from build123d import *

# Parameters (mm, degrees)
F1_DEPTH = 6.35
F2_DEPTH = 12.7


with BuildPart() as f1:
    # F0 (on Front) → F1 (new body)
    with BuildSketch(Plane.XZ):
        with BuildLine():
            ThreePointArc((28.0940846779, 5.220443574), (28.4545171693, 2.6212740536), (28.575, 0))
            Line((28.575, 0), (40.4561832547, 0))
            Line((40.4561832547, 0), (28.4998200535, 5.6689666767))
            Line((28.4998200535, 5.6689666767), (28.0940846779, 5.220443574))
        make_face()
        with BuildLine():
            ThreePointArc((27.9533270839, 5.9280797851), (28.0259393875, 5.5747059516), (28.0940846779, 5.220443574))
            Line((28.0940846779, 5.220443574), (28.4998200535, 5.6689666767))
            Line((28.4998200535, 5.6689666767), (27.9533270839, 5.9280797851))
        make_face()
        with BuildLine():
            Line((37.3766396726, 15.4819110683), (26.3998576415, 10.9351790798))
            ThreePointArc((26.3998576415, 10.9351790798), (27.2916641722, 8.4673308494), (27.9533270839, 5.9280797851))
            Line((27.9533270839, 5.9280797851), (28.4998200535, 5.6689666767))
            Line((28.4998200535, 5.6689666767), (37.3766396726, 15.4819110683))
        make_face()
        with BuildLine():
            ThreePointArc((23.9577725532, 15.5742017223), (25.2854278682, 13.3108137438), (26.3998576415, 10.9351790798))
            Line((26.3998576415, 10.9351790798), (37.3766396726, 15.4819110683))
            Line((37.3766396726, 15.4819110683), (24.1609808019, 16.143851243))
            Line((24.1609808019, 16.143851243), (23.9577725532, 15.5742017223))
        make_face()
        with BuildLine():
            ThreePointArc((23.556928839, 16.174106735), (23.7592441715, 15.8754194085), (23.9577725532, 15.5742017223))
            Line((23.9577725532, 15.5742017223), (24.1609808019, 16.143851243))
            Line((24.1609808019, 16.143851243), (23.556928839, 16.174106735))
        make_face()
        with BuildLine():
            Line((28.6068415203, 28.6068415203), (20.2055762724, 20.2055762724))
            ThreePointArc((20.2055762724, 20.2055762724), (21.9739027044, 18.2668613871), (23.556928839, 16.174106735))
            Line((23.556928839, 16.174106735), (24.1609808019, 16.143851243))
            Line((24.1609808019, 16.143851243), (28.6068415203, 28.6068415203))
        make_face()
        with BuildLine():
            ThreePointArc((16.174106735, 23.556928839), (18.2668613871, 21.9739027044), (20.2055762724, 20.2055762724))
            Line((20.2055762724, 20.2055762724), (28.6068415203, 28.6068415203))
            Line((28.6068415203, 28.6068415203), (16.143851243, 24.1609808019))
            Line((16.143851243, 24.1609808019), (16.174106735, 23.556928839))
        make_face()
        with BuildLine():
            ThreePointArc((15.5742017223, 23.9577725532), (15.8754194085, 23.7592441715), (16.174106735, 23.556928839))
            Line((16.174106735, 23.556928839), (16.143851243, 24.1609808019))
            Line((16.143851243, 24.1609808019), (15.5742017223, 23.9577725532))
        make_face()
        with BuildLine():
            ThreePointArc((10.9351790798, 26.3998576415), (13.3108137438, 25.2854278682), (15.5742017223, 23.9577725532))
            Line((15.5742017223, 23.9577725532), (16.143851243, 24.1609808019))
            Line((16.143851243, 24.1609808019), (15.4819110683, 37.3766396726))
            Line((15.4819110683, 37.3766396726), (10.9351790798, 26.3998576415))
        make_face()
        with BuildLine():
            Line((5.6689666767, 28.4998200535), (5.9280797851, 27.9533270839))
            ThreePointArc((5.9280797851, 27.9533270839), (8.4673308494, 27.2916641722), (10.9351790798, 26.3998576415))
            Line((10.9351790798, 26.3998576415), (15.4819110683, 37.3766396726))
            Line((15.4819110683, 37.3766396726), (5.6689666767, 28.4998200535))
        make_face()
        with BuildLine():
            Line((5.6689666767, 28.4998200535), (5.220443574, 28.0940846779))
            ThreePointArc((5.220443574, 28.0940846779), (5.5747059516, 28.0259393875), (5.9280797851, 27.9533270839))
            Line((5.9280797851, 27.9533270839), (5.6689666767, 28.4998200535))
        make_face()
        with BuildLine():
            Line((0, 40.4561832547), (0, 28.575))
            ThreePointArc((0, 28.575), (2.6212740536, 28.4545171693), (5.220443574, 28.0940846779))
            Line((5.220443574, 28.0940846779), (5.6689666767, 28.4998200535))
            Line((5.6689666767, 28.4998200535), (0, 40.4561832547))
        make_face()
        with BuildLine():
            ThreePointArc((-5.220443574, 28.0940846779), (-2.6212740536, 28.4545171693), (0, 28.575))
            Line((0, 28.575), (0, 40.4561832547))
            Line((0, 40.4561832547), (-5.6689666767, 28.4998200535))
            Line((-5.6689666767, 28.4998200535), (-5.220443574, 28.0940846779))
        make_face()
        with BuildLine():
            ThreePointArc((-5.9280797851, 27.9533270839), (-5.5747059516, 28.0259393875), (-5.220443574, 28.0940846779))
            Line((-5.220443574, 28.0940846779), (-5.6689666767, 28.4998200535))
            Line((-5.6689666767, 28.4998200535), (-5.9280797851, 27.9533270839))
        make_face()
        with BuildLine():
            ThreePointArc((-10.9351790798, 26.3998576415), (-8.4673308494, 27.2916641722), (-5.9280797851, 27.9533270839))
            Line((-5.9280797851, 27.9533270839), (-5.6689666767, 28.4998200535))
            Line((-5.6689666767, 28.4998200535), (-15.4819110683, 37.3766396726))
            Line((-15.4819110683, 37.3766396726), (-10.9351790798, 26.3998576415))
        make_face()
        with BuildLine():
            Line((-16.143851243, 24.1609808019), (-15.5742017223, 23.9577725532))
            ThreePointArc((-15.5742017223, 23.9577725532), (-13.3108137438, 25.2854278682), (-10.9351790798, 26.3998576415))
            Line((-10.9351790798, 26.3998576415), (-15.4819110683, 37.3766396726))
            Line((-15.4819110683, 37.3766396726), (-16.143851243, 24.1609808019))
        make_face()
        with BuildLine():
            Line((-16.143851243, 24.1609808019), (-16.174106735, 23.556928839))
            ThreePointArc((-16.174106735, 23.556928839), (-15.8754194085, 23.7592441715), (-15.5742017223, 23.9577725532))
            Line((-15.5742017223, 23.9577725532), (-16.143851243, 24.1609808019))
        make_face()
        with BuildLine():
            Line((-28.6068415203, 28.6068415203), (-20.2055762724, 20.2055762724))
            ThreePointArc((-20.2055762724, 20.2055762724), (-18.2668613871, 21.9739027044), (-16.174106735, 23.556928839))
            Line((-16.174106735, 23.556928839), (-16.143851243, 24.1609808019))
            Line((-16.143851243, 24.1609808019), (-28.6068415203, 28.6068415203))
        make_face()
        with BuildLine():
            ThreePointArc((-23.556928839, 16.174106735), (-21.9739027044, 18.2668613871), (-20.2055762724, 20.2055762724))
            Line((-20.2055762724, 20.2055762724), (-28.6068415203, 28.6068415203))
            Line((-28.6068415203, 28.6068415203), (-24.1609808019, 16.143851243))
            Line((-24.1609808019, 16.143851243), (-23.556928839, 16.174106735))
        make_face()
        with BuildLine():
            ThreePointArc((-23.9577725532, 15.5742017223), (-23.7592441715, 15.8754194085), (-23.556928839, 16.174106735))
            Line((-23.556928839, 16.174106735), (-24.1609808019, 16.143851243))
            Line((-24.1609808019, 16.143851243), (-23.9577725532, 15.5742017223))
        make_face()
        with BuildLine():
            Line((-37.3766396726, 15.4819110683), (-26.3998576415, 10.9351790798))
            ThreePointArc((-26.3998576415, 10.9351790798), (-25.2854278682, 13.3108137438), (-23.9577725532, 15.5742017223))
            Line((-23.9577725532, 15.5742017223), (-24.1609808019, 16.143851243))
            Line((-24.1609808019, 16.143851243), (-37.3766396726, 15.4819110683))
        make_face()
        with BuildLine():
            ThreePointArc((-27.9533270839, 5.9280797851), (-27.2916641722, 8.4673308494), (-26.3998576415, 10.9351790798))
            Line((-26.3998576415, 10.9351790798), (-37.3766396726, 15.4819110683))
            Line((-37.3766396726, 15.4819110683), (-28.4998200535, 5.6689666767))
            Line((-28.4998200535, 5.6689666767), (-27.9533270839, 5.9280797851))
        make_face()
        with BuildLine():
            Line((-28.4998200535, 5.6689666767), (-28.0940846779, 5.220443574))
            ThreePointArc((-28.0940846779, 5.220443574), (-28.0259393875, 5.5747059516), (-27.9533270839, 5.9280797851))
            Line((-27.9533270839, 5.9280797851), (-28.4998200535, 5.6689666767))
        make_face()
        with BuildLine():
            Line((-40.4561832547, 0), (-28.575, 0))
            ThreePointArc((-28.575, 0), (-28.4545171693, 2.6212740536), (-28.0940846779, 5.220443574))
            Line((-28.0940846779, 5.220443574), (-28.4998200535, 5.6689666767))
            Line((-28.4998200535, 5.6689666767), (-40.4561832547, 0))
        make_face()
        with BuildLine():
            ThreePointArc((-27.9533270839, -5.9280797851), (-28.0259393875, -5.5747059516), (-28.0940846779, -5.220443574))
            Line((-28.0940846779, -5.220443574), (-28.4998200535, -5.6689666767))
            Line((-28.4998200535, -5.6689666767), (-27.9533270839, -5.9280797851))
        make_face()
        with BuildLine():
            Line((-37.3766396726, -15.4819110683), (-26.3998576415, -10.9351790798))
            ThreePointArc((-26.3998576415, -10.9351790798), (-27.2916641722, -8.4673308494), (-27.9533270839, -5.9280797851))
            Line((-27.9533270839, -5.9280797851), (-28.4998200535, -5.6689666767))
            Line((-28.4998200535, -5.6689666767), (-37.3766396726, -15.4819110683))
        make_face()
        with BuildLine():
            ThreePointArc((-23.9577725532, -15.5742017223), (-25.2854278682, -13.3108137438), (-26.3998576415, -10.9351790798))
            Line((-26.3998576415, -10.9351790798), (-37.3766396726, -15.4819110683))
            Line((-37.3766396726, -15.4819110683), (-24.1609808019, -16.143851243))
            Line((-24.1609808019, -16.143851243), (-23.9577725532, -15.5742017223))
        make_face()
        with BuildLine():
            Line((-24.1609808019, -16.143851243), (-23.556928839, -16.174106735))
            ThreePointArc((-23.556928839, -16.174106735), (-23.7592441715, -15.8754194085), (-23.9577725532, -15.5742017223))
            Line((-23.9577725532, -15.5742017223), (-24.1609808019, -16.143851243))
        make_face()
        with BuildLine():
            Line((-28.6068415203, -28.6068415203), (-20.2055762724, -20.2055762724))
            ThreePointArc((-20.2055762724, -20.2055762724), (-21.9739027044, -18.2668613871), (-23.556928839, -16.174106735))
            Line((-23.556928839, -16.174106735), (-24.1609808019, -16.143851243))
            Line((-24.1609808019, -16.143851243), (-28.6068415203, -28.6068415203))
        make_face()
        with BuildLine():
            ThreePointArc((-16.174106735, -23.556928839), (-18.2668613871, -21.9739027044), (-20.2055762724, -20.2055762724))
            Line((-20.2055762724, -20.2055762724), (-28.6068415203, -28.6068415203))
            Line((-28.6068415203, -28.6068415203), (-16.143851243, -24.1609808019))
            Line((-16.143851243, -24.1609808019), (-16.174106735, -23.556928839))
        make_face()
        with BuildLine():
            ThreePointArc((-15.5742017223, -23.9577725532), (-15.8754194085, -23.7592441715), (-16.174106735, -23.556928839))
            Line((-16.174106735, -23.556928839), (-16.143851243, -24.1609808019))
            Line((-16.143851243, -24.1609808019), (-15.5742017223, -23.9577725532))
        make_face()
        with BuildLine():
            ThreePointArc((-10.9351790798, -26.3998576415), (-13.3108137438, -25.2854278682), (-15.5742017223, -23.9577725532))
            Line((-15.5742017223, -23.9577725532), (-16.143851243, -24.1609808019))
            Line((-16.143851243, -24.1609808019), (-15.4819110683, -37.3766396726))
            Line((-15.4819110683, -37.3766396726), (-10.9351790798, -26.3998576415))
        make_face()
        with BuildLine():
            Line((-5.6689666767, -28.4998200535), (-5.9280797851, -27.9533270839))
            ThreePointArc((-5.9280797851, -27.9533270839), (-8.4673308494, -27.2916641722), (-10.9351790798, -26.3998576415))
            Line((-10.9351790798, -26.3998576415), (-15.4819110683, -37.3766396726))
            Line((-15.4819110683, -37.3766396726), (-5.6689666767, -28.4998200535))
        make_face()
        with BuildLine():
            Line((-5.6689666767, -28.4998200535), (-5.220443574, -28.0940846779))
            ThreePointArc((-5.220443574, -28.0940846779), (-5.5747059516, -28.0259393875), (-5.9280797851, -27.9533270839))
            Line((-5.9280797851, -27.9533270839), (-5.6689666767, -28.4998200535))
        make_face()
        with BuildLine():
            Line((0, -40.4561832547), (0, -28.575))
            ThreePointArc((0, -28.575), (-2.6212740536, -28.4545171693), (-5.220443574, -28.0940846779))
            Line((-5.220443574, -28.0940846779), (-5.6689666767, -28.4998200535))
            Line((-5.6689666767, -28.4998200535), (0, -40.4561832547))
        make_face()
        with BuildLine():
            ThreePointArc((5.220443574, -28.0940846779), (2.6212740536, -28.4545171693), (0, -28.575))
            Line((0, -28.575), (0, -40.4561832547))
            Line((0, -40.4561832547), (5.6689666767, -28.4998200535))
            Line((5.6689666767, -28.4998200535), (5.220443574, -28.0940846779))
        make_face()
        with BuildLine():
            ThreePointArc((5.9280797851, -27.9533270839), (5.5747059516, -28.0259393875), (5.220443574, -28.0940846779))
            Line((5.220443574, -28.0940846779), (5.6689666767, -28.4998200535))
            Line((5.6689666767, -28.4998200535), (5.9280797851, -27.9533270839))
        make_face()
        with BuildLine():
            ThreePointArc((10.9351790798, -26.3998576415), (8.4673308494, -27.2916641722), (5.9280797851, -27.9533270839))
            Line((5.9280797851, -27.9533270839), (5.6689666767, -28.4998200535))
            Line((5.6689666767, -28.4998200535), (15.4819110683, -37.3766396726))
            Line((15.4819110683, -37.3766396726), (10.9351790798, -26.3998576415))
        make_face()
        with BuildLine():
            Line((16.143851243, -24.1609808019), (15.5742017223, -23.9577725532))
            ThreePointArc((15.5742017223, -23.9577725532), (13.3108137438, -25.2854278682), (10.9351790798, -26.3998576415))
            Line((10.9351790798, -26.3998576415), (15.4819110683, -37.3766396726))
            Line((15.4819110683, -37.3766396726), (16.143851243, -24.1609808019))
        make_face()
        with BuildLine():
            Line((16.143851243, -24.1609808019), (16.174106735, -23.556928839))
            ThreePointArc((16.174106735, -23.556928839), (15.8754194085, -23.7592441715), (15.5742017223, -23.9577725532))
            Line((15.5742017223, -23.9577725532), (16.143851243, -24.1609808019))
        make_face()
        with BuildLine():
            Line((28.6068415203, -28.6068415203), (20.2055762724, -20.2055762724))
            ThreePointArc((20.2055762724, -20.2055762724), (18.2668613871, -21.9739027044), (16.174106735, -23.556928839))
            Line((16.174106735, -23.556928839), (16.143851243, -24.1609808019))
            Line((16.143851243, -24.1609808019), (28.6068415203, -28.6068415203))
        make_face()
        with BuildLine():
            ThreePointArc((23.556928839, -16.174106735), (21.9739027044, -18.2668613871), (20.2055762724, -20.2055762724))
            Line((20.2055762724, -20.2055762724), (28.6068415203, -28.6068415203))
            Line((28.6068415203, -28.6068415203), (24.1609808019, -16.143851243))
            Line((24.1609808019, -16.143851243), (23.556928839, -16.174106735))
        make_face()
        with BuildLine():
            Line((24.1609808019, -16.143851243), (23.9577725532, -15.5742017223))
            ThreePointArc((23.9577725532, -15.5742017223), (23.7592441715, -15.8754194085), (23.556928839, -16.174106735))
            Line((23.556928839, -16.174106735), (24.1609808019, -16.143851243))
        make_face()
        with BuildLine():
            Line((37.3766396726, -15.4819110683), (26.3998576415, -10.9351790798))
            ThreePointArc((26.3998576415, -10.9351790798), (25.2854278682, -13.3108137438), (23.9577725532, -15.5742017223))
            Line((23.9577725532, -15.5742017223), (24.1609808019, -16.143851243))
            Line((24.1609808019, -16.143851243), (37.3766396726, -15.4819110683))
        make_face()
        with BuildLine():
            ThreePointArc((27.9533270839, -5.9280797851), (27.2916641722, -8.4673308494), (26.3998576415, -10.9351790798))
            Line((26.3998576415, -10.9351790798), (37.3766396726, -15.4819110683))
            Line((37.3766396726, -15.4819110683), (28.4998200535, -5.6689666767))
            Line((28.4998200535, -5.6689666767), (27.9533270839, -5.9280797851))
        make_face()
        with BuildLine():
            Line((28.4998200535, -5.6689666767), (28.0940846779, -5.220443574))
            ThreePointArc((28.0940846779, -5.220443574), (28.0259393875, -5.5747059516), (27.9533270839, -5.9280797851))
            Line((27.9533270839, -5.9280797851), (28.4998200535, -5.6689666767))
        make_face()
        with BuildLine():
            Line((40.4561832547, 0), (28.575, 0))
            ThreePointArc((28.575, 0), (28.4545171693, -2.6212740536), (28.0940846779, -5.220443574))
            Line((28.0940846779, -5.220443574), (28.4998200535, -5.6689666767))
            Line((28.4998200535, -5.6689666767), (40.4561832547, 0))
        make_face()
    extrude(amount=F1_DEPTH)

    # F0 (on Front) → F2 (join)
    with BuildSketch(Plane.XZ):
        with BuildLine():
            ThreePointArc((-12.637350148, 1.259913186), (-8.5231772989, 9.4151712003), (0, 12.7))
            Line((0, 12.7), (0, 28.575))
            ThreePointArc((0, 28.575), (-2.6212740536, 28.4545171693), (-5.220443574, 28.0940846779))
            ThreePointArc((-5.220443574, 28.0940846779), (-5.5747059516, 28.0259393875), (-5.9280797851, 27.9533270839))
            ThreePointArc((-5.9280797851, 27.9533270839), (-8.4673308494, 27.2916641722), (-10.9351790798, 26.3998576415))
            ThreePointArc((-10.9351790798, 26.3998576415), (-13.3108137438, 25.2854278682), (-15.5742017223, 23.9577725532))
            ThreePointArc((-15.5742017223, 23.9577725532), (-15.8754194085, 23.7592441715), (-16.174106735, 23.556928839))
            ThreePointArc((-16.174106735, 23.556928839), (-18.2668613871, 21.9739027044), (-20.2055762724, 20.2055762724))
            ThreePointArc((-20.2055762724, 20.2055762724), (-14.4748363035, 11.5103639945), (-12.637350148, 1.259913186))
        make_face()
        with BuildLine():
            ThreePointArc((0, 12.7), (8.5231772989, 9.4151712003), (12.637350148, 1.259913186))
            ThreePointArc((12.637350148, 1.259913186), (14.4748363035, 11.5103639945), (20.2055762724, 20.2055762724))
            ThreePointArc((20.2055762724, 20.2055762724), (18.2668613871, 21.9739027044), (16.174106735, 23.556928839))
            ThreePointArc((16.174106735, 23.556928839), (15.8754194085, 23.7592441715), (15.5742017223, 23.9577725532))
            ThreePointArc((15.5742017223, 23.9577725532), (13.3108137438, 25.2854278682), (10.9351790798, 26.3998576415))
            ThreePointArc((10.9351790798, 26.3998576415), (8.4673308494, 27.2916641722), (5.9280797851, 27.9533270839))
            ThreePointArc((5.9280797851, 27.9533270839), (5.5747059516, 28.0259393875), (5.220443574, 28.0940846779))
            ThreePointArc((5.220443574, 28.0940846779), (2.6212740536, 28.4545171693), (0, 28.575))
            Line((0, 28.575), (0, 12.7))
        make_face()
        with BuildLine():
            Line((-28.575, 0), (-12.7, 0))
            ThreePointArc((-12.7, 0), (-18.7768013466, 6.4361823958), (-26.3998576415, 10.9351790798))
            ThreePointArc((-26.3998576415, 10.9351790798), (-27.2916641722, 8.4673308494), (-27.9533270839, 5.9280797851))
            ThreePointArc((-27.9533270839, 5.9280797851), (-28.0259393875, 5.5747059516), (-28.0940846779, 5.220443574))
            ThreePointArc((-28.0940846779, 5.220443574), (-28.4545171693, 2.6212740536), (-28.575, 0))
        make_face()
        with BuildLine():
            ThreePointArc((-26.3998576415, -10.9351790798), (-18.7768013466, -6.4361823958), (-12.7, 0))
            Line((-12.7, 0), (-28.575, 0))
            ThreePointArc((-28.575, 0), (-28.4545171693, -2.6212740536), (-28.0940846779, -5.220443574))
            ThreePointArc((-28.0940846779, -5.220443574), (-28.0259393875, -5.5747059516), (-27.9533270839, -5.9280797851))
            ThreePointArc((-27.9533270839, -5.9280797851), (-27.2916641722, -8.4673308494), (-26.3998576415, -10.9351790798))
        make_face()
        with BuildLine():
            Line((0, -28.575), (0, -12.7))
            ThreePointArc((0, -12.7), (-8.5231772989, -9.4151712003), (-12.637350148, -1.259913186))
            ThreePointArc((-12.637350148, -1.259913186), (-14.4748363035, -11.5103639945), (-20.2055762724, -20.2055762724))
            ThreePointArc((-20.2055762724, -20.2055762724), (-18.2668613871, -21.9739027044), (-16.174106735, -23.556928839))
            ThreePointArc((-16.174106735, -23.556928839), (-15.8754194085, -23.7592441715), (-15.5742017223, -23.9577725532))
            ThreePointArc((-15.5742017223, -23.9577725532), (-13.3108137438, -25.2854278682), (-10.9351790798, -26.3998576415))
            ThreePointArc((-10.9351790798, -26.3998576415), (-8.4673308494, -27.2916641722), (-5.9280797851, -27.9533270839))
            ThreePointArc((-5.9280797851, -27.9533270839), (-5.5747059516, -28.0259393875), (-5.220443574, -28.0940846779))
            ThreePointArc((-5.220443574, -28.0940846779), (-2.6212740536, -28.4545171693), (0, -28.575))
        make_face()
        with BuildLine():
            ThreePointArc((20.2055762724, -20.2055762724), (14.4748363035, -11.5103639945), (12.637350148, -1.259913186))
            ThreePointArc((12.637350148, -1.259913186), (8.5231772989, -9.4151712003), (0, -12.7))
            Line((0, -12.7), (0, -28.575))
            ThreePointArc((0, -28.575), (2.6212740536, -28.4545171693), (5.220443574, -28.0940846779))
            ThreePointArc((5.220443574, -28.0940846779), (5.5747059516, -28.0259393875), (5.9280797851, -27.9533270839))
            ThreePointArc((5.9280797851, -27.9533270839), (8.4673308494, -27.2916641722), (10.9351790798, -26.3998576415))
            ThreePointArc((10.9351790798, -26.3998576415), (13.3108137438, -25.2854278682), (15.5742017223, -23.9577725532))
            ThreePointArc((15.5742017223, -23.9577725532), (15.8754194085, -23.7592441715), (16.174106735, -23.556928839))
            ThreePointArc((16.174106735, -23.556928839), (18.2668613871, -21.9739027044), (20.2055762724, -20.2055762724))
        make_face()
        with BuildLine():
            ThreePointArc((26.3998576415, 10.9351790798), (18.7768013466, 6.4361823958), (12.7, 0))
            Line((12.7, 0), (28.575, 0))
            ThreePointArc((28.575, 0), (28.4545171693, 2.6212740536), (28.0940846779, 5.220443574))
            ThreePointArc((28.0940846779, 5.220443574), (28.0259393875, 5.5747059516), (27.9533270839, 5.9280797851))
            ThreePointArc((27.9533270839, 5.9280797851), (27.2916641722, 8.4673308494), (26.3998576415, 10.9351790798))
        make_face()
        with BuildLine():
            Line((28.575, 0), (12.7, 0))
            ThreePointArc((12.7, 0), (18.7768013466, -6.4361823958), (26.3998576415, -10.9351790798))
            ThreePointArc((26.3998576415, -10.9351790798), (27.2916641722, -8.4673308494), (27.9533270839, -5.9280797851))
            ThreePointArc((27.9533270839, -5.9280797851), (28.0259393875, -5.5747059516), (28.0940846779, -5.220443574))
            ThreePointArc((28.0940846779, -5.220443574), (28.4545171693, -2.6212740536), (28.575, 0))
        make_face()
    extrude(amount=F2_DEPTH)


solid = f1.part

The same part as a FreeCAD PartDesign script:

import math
import FreeCAD as App
import Part
import Sketcher
from FreeCAD import Vector
Q = App.Units.Quantity

doc = App.newDocument("Part")
body = doc.addObject("PartDesign::Body", "Body")

# Sketch on XZ plane
sketch1 = body.newObject("Sketcher::SketchObject", "Sketch")
sketch1.AttachmentSupport = (doc.getObject("XZ_Plane"), [""])
sketch1.MapMode = "FlatFace"
sketch1.addGeometry([
    Part.ArcOfCircle(Part.Circle(Vector(0, 0, 0), Vector(0, 0, 1), 28.6), math.radians(0), math.radians(10.53)),  # 0
    Part.ArcOfCircle(Part.Circle(Vector(0, 0, 0), Vector(0, 0, 1), 28.6), math.radians(-10.53), math.radians(0)),  # 1
    Part.ArcOfCircle(Part.Circle(Vector(0, 0, 0), Vector(0, 0, 1), 28.6), math.radians(-11.97), math.radians(-10.53)),  # 2
    Part.ArcOfCircle(Part.Circle(Vector(0, 0, 0), Vector(0, 0, 1), 28.6), math.radians(-22.5), math.radians(-11.97)),  # 3
    Part.ArcOfCircle(Part.Circle(Vector(0, 0, 0), Vector(0, 0, 1), 28.6), math.radians(-33.03), math.radians(-22.5)),  # 4
    Part.ArcOfCircle(Part.Circle(Vector(0, 0, 0), Vector(0, 0, 1), 28.6), math.radians(-34.47), math.radians(-33.03)),  # 5
    Part.ArcOfCircle(Part.Circle(Vector(0, 0, 0), Vector(0, 0, 1), 28.6), math.radians(-45), math.radians(-34.47)),  # 6
    Part.ArcOfCircle(Part.Circle(Vector(0, 0, 0), Vector(0, 0, 1), 28.6), math.radians(-55.53), math.radians(-45)),  # 7
    Part.ArcOfCircle(Part.Circle(Vector(0, 0, 0), Vector(0, 0, 1), 28.6), math.radians(-56.97), math.radians(-55.53)),  # 8
    Part.ArcOfCircle(Part.Circle(Vector(0, 0, 0), Vector(0, 0, 1), 28.6), math.radians(-67.5), math.radians(-56.97)),  # 9
    Part.ArcOfCircle(Part.Circle(Vector(0, 0, 0), Vector(0, 0, 1), 28.6), math.radians(-78.03), math.radians(-67.5)),  # 10
    Part.ArcOfCircle(Part.Circle(Vector(0, 0, 0), Vector(0, 0, 1), 28.6), math.radians(-79.47), math.radians(-78.03)),  # 11
    Part.ArcOfCircle(Part.Circle(Vector(0, 0, 0), Vector(0, 0, 1), 28.6), math.radians(-90), math.radians(-79.47)),  # 12
    Part.ArcOfCircle(Part.Circle(Vector(0, 0, 0), Vector(0, 0, 1), 28.6), math.radians(-100.53), math.radians(-90)),  # 13
    Part.ArcOfCircle(Part.Circle(Vector(0, 0, 0), Vector(0, 0, 1), 28.6), math.radians(-101.97), math.radians(-100.53)),  # 14
    Part.ArcOfCircle(Part.Circle(Vector(0, 0, 0), Vector(0, 0, 1), 28.6), math.radians(-112.5), math.radians(-101.97)),  # 15
    Part.ArcOfCircle(Part.Circle(Vector(0, 0, 0), Vector(0, 0, 1), 28.6), math.radians(-123.03), math.radians(-112.5)),  # 16
    Part.ArcOfCircle(Part.Circle(Vector(0, 0, 0), Vector(0, 0, 1), 28.6), math.radians(-124.47), math.radians(-123.03)),  # 17
    Part.ArcOfCircle(Part.Circle(Vector(0, 0, 0), Vector(0, 0, 1), 28.6), math.radians(-135), math.radians(-124.47)),  # 18
    Part.ArcOfCircle(Part.Circle(Vector(0, 0, 0), Vector(0, 0, 1), 28.6), math.radians(-145.53), math.radians(-135)),  # 19
    Part.ArcOfCircle(Part.Circle(Vector(0, 0, 0), Vector(0, 0, 1), 28.6), math.radians(-146.97), math.radians(-145.53)),  # 20
    Part.ArcOfCircle(Part.Circle(Vector(0, 0, 0), Vector(0, 0, 1), 28.6), math.radians(-157.5), math.radians(-146.97)),  # 21
    Part.ArcOfCircle(Part.Circle(Vector(0, 0, 0), Vector(0, 0, 1), 28.6), math.radians(-168.03), math.radians(-157.5)),  # 22
    Part.ArcOfCircle(Part.Circle(Vector(0, 0, 0), Vector(0, 0, 1), 28.6), math.radians(-169.47), math.radians(-168.03)),  # 23
    Part.LineSegment(Vector(-28.1, -5.2, 0), Vector(-28.5, -5.7, 0)),  # 24
    Part.LineSegment(Vector(-28.5, -5.7, 0), Vector(-37.4, -15.5, 0)),  # 25
    Part.LineSegment(Vector(-37.4, -15.5, 0), Vector(-24.2, -16.1, 0)),  # 26
    Part.LineSegment(Vector(-24.2, -16.1, 0), Vector(-28.6, -28.6, 0)),  # 27
    Part.LineSegment(Vector(-28.6, -28.6, 0), Vector(-16.1, -24.2, 0)),  # 28
    Part.LineSegment(Vector(-16.1, -24.2, 0), Vector(-15.5, -37.4, 0)),  # 29
    Part.LineSegment(Vector(-15.5, -37.4, 0), Vector(-5.7, -28.5, 0)),  # 30
    Part.LineSegment(Vector(-5.7, -28.5, 0), Vector(0, -40.5, 0)),  # 31
    Part.LineSegment(Vector(0, -40.5, 0), Vector(5.7, -28.5, 0)),  # 32
    Part.LineSegment(Vector(5.7, -28.5, 0), Vector(15.5, -37.4, 0)),  # 33
    Part.LineSegment(Vector(15.5, -37.4, 0), Vector(16.1, -24.2, 0)),  # 34
    Part.LineSegment(Vector(16.1, -24.2, 0), Vector(28.6, -28.6, 0)),  # 35
    Part.LineSegment(Vector(28.6, -28.6, 0), Vector(24.2, -16.1, 0)),  # 36
    Part.LineSegment(Vector(24.2, -16.1, 0), Vector(37.4, -15.5, 0)),  # 37
    Part.LineSegment(Vector(37.4, -15.5, 0), Vector(28.5, -5.7, 0)),  # 38
    Part.LineSegment(Vector(28.5, -5.7, 0), Vector(40.5, 0, 0)),  # 39
    Part.LineSegment(Vector(40.5, 0, 0), Vector(28.5, 5.7, 0)),  # 40
    Part.LineSegment(Vector(28.5, 5.7, 0), Vector(37.4, 15.5, 0)),  # 41
    Part.LineSegment(Vector(37.4, 15.5, 0), Vector(24.2, 16.1, 0)),  # 42
    Part.LineSegment(Vector(24.2, 16.1, 0), Vector(28.6, 28.6, 0)),  # 43
    Part.LineSegment(Vector(28.6, 28.6, 0), Vector(16.1, 24.2, 0)),  # 44
    Part.LineSegment(Vector(16.1, 24.2, 0), Vector(15.5, 37.4, 0)),  # 45
    Part.LineSegment(Vector(15.5, 37.4, 0), Vector(5.7, 28.5, 0)),  # 46
    Part.LineSegment(Vector(5.7, 28.5, 0), Vector(0, 40.5, 0)),  # 47
    Part.LineSegment(Vector(0, 40.5, 0), Vector(-5.7, 28.5, 0)),  # 48
    Part.LineSegment(Vector(-5.7, 28.5, 0), Vector(-15.5, 37.4, 0)),  # 49
    Part.LineSegment(Vector(-15.5, 37.4, 0), Vector(-16.1, 24.2, 0)),  # 50
    Part.LineSegment(Vector(-16.1, 24.2, 0), Vector(-28.6, 28.6, 0)),  # 51
    Part.LineSegment(Vector(-28.6, 28.6, 0), Vector(-24.2, 16.1, 0)),  # 52
    Part.LineSegment(Vector(-24.2, 16.1, 0), Vector(-37.4, 15.5, 0)),  # 53
    Part.LineSegment(Vector(-37.4, 15.5, 0), Vector(-28.5, 5.7, 0)),  # 54
    Part.LineSegment(Vector(-28.5, 5.7, 0), Vector(-40.5, 0, 0)),  # 55
    Part.LineSegment(Vector(-40.5, 0, 0), Vector(-28.6, 0, 0)),  # 56
    Part.ArcOfCircle(Part.Circle(Vector(0, 0, 0), Vector(0, 0, 1), 28.6), math.radians(169.47), math.radians(180)),  # 57
    Part.ArcOfCircle(Part.Circle(Vector(0, 0, 0), Vector(0, 0, 1), 28.6), math.radians(168.03), math.radians(169.47)),  # 58
    Part.ArcOfCircle(Part.Circle(Vector(0, 0, 0), Vector(0, 0, 1), 28.6), math.radians(157.5), math.radians(168.03)),  # 59
    Part.ArcOfCircle(Part.Circle(Vector(0, 0, 0), Vector(0, 0, 1), 28.6), math.radians(146.97), math.radians(157.5)),  # 60
    Part.ArcOfCircle(Part.Circle(Vector(0, 0, 0), Vector(0, 0, 1), 28.6), math.radians(145.53), math.radians(146.97)),  # 61
    Part.ArcOfCircle(Part.Circle(Vector(0, 0, 0), Vector(0, 0, 1), 28.6), math.radians(135), math.radians(145.53)),  # 62
    Part.ArcOfCircle(Part.Circle(Vector(0, 0, 0), Vector(0, 0, 1), 28.6), math.radians(124.47), math.radians(135)),  # 63
    Part.ArcOfCircle(Part.Circle(Vector(0, 0, 0), Vector(0, 0, 1), 28.6), math.radians(123.03), math.radians(124.47)),  # 64
    Part.ArcOfCircle(Part.Circle(Vector(0, 0, 0), Vector(0, 0, 1), 28.6), math.radians(112.5), math.radians(123.03)),  # 65
    Part.ArcOfCircle(Part.Circle(Vector(0, 0, 0), Vector(0, 0, 1), 28.6), math.radians(101.97), math.radians(112.5)),  # 66
    Part.ArcOfCircle(Part.Circle(Vector(0, 0, 0), Vector(0, 0, 1), 28.6), math.radians(100.53), math.radians(101.97)),  # 67
    Part.ArcOfCircle(Part.Circle(Vector(0, 0, 0), Vector(0, 0, 1), 28.6), math.radians(90), math.radians(100.53)),  # 68
    Part.ArcOfCircle(Part.Circle(Vector(0, 0, 0), Vector(0, 0, 1), 28.6), math.radians(79.47), math.radians(90)),  # 69
    Part.ArcOfCircle(Part.Circle(Vector(0, 0, 0), Vector(0, 0, 1), 28.6), math.radians(78.03), math.radians(79.47)),  # 70
    Part.ArcOfCircle(Part.Circle(Vector(0, 0, 0), Vector(0, 0, 1), 28.6), math.radians(67.5), math.radians(78.03)),  # 71
    Part.ArcOfCircle(Part.Circle(Vector(0, 0, 0), Vector(0, 0, 1), 28.6), math.radians(56.97), math.radians(67.5)),  # 72
    Part.ArcOfCircle(Part.Circle(Vector(0, 0, 0), Vector(0, 0, 1), 28.6), math.radians(55.53), math.radians(56.97)),  # 73
    Part.ArcOfCircle(Part.Circle(Vector(0, 0, 0), Vector(0, 0, 1), 28.6), math.radians(45), math.radians(55.53)),  # 74
    Part.ArcOfCircle(Part.Circle(Vector(0, 0, 0), Vector(0, 0, 1), 28.6), math.radians(34.47), math.radians(45)),  # 75
    Part.ArcOfCircle(Part.Circle(Vector(0, 0, 0), Vector(0, 0, 1), 28.6), math.radians(33.03), math.radians(34.47)),  # 76
    Part.ArcOfCircle(Part.Circle(Vector(0, 0, 0), Vector(0, 0, 1), 28.6), math.radians(22.5), math.radians(33.03)),  # 77
    Part.ArcOfCircle(Part.Circle(Vector(0, 0, 0), Vector(0, 0, 1), 28.6), math.radians(11.97), math.radians(22.5)),  # 78
    Part.ArcOfCircle(Part.Circle(Vector(0, 0, 0), Vector(0, 0, 1), 28.6), math.radians(10.53), math.radians(11.97)),  # 79
], False)
sketch1.addConstraint([
    Sketcher.Constraint("Tangent", 0, 1, 1, 2),
    Sketcher.Constraint("Tangent", 1, 1, 2, 2),
    Sketcher.Constraint("Tangent", 2, 1, 3, 2),
    Sketcher.Constraint("Tangent", 3, 1, 4, 2),
    Sketcher.Constraint("Tangent", 4, 1, 5, 2),
    Sketcher.Constraint("Tangent", 5, 1, 6, 2),
    Sketcher.Constraint("Tangent", 6, 1, 7, 2),
    Sketcher.Constraint("Tangent", 7, 1, 8, 2),
    Sketcher.Constraint("Tangent", 8, 1, 9, 2),
    Sketcher.Constraint("Tangent", 9, 1, 10, 2),
    Sketcher.Constraint("Tangent", 10, 1, 11, 2),
    Sketcher.Constraint("Tangent", 11, 1, 12, 2),
    Sketcher.Constraint("Tangent", 12, 1, 13, 2),
    Sketcher.Constraint("Tangent", 13, 1, 14, 2),
    Sketcher.Constraint("Tangent", 14, 1, 15, 2),
    Sketcher.Constraint("Tangent", 15, 1, 16, 2),
    Sketcher.Constraint("Tangent", 16, 1, 17, 2),
    Sketcher.Constraint("Tangent", 17, 1, 18, 2),
    Sketcher.Constraint("Tangent", 18, 1, 19, 2),
    Sketcher.Constraint("Tangent", 19, 1, 20, 2),
    Sketcher.Constraint("Tangent", 20, 1, 21, 2),
    Sketcher.Constraint("Tangent", 21, 1, 22, 2),
    Sketcher.Constraint("Tangent", 22, 1, 23, 2),
    Sketcher.Constraint("Coincident", 23, 1, 24, 1),
    Sketcher.Constraint("Coincident", 24, 2, 25, 1),
    Sketcher.Constraint("Coincident", 25, 2, 26, 1),
    Sketcher.Constraint("Coincident", 26, 2, 27, 1),
    Sketcher.Constraint("Coincident", 27, 2, 28, 1),
    Sketcher.Constraint("Coincident", 28, 2, 29, 1),
    Sketcher.Constraint("Coincident", 29, 2, 30, 1),
    Sketcher.Constraint("Coincident", 30, 2, 31, 1),
    Sketcher.Constraint("Coincident", 31, 2, 32, 1),
    Sketcher.Constraint("Coincident", 32, 2, 33, 1),
    Sketcher.Constraint("Coincident", 33, 2, 34, 1),
    Sketcher.Constraint("Coincident", 34, 2, 35, 1),
    Sketcher.Constraint("Coincident", 35, 2, 36, 1),
    Sketcher.Constraint("Coincident", 36, 2, 37, 1),
    Sketcher.Constraint("Coincident", 37, 2, 38, 1),
    Sketcher.Constraint("Coincident", 38, 2, 39, 1),
    Sketcher.Constraint("Coincident", 39, 2, 40, 1),
    Sketcher.Constraint("Coincident", 40, 2, 41, 1),
    Sketcher.Constraint("Coincident", 41, 2, 42, 1),
    Sketcher.Constraint("Coincident", 42, 2, 43, 1),
    Sketcher.Constraint("Coincident", 43, 2, 44, 1),
    Sketcher.Constraint("Coincident", 44, 2, 45, 1),
    Sketcher.Constraint("Coincident", 45, 2, 46, 1),
    Sketcher.Constraint("Coincident", 46, 2, 47, 1),
    Sketcher.Constraint("Coincident", 47, 2, 48, 1),
    Sketcher.Constraint("Coincident", 48, 2, 49, 1),
    Sketcher.Constraint("Coincident", 49, 2, 50, 1),
    Sketcher.Constraint("Coincident", 50, 2, 51, 1),
    Sketcher.Constraint("Coincident", 51, 2, 52, 1),
    Sketcher.Constraint("Coincident", 52, 2, 53, 1),
    Sketcher.Constraint("Coincident", 53, 2, 54, 1),
    Sketcher.Constraint("Coincident", 54, 2, 55, 1),
    Sketcher.Constraint("Coincident", 55, 2, 56, 1),
    Sketcher.Constraint("Coincident", 56, 2, 57, 2),
    Sketcher.Constraint("Tangent", 57, 1, 58, 2),
    Sketcher.Constraint("Tangent", 58, 1, 59, 2),
    Sketcher.Constraint("Tangent", 59, 1, 60, 2),
    Sketcher.Constraint("Tangent", 60, 1, 61, 2),
    Sketcher.Constraint("Tangent", 61, 1, 62, 2),
    Sketcher.Constraint("Tangent", 62, 1, 63, 2),
    Sketcher.Constraint("Tangent", 63, 1, 64, 2),
    Sketcher.Constraint("Tangent", 64, 1, 65, 2),
    Sketcher.Constraint("Tangent", 65, 1, 66, 2),
    Sketcher.Constraint("Tangent", 66, 1, 67, 2),
    Sketcher.Constraint("Tangent", 67, 1, 68, 2),
    Sketcher.Constraint("Tangent", 68, 1, 69, 2),
    Sketcher.Constraint("Tangent", 69, 1, 70, 2),
    Sketcher.Constraint("Tangent", 70, 1, 71, 2),
    Sketcher.Constraint("Tangent", 71, 1, 72, 2),
    Sketcher.Constraint("Tangent", 72, 1, 73, 2),
    Sketcher.Constraint("Tangent", 73, 1, 74, 2),
    Sketcher.Constraint("Tangent", 74, 1, 75, 2),
    Sketcher.Constraint("Tangent", 75, 1, 76, 2),
    Sketcher.Constraint("Tangent", 76, 1, 77, 2),
    Sketcher.Constraint("Tangent", 77, 1, 78, 2),
    Sketcher.Constraint("Tangent", 78, 1, 79, 2),
    Sketcher.Constraint("Tangent", 79, 1, 0, 2),
    Sketcher.Constraint("Horizontal", 56),
    Sketcher.Constraint("Coincident", 0, 3, -1, 1),
    Sketcher.Constraint("Coincident", 2, 3, -1, 1),
    Sketcher.Constraint("Coincident", 4, 3, -1, 1),
    Sketcher.Constraint("Coincident", 6, 3, -1, 1),
    Sketcher.Constraint("Coincident", 8, 3, -1, 1),
    Sketcher.Constraint("Coincident", 10, 3, -1, 1),
    Sketcher.Constraint("Coincident", 12, 3, -1, 1),
    Sketcher.Constraint("Coincident", 14, 3, -1, 1),
    Sketcher.Constraint("Coincident", 16, 3, -1, 1),
    Sketcher.Constraint("Coincident", 18, 3, -1, 1),
    Sketcher.Constraint("Coincident", 20, 3, -1, 1),
    Sketcher.Constraint("Coincident", 22, 3, -1, 1),
    Sketcher.Constraint("Coincident", 57, 3, -1, 1),
    Sketcher.Constraint("Coincident", 59, 3, -1, 1),
    Sketcher.Constraint("Coincident", 61, 3, -1, 1),
    Sketcher.Constraint("Coincident", 63, 3, -1, 1),
    Sketcher.Constraint("Coincident", 65, 3, -1, 1),
    Sketcher.Constraint("Coincident", 67, 3, -1, 1),
    Sketcher.Constraint("Coincident", 69, 3, -1, 1),
    Sketcher.Constraint("Coincident", 71, 3, -1, 1),
    Sketcher.Constraint("Coincident", 73, 3, -1, 1),
    Sketcher.Constraint("Coincident", 75, 3, -1, 1),
    Sketcher.Constraint("Coincident", 77, 3, -1, 1),
    Sketcher.Constraint("Equal", 22, 23),
    Sketcher.Constraint("Equal", 77, 78),
    Sketcher.Constraint("Symmetric", 24, 2, 40, 2, -1, 1),
    Sketcher.Constraint("Symmetric", 25, 2, 41, 2, -1, 1),
    Sketcher.Constraint("Symmetric", 26, 2, 42, 2, -1, 1),
    Sketcher.Constraint("Symmetric", 27, 2, 43, 2, -1, 1),
    Sketcher.Constraint("Symmetric", 28, 2, 44, 2, -1, 1),
    Sketcher.Constraint("Symmetric", 29, 2, 45, 2, -1, 1),
    Sketcher.Constraint("Symmetric", 30, 2, 46, 2, -1, 1),
    Sketcher.Constraint("Symmetric", 31, 2, 47, 2, -1, 1),
    Sketcher.Constraint("Symmetric", 32, 2, 48, 2, -1, 1),
    Sketcher.Constraint("Symmetric", 33, 2, 49, 2, -1, 1),
    Sketcher.Constraint("Symmetric", 34, 2, 50, 2, -1, 1),
    Sketcher.Constraint("Symmetric", 35, 2, 51, 2, -1, 1),
    Sketcher.Constraint("Symmetric", 36, 2, 52, 2, -1, 1),
    Sketcher.Constraint("Symmetric", 37, 2, 53, 2, -1, 1),
    Sketcher.Constraint("Symmetric", 38, 2, 54, 2, -1, 1),
    Sketcher.Constraint("Symmetric", 39, 2, 55, 2, -1, 1),
    Sketcher.Constraint("Symmetric", 30, 2, 32, 2, -2),
    Sketcher.Constraint("Symmetric", 29, 2, 33, 2, -2),
    Sketcher.Constraint("Symmetric", 28, 2, 34, 2, -2),
    Sketcher.Constraint("Symmetric", 27, 2, 35, 2, -2),
    Sketcher.Constraint("Symmetric", 26, 2, 36, 2, -2),
    Sketcher.Constraint("Symmetric", 25, 2, 37, 2, -2),
    Sketcher.Constraint("Symmetric", 24, 2, 38, 2, -2),
    Sketcher.Constraint("PointOnObject", 0, 1, -1),
    Sketcher.Constraint("PointOnObject", 12, 1, -2),
    Sketcher.Constraint("PointOnObject", 31, 2, -2),
    Sketcher.Constraint("PointOnObject", 39, 2, -1),
    Sketcher.Constraint("PointOnObject", 68, 1, -2),
    Sketcher.Constraint("Parallel", 24, 25),
    Sketcher.Constraint("Perpendicular", 25, 33),
    Sketcher.Constraint("Perpendicular", 26, 34),
    Sketcher.Constraint("Perpendicular", 27, 35),
    Sketcher.Constraint("Perpendicular", 31, 39),
    Sketcher.Constraint("Horizontal", 11, 1, 13, 1),
    Sketcher.Constraint("Horizontal", 10, 1, 14, 1),
    Sketcher.Constraint("Horizontal", 9, 1, 15, 1),
    Sketcher.Constraint("Horizontal", 8, 1, 16, 1),
    Sketcher.Constraint("Horizontal", 7, 1, 17, 1),
    Sketcher.Constraint("Horizontal", 6, 1, 18, 1),
    Sketcher.Constraint("Horizontal", 5, 1, 19, 1),
    Sketcher.Constraint("Horizontal", 4, 1, 20, 1),
    Sketcher.Constraint("Horizontal", 3, 1, 21, 1),
    Sketcher.Constraint("Horizontal", 2, 1, 22, 1),
    Sketcher.Constraint("Horizontal", 1, 1, 23, 1),
    Sketcher.Constraint("Horizontal", 67, 1, 69, 1),
    Sketcher.Constraint("Horizontal", 66, 1, 70, 1),
    Sketcher.Constraint("Horizontal", 65, 1, 71, 1),
    Sketcher.Constraint("Horizontal", 64, 1, 72, 1),
    Sketcher.Constraint("Horizontal", 63, 1, 73, 1),
    Sketcher.Constraint("Horizontal", 62, 1, 74, 1),
    Sketcher.Constraint("Horizontal", 61, 1, 75, 1),
    Sketcher.Constraint("Horizontal", 60, 1, 76, 1),
    Sketcher.Constraint("Horizontal", 59, 1, 77, 1),
    Sketcher.Constraint("Horizontal", 58, 1, 78, 1),
    Sketcher.Constraint("Horizontal", 57, 1, 79, 1),
    Sketcher.Constraint("Vertical", 23, 1, 57, 1),
    Sketcher.Constraint("Vertical", 22, 1, 58, 1),
    Sketcher.Constraint("Vertical", 21, 1, 59, 1),
    Sketcher.Constraint("Vertical", 20, 1, 60, 1),
    Sketcher.Constraint("Vertical", 19, 1, 61, 1),
    Sketcher.Constraint("Vertical", 18, 1, 62, 1),
    Sketcher.Constraint("Vertical", 17, 1, 63, 1),
    Sketcher.Constraint("Vertical", 16, 1, 64, 1),
    Sketcher.Constraint("Vertical", 15, 1, 65, 1),
    Sketcher.Constraint("Vertical", 14, 1, 66, 1),
    Sketcher.Constraint("Vertical", 13, 1, 67, 1),
    Sketcher.Constraint("Equal", 25, 26),
    Sketcher.Constraint("Equal", 26, 27),
    Sketcher.Constraint("Equal", 27, 28),
    Sketcher.Constraint("Equal", 28, 29),
    Sketcher.Constraint("Equal", 29, 30),
    Sketcher.Constraint("Equal", 30, 31),
    Sketcher.Constraint("Equal", 38, 39),
    Sketcher.Constraint("Radius", 0, Q("1.125 in")),
    Sketcher.Constraint("DistanceY", 4, 1, -1, 1, Q("15.574202 mm")),
    Sketcher.Constraint("DistanceX", -1, 1, 8, 1, Q("15.574202 mm")),
    Sketcher.Constraint("Distance", 24, Q("0.604809 mm")),
    Sketcher.Constraint("DistanceX", 56, 1, 56, 2, Q("11.881183 mm")),
    Sketcher.Constraint("DistanceY", 2, 1, -1, 1, Q("5.92808 mm")),
    Sketcher.Constraint("DistanceY", 3, 1, -1, 1, Q("10.935179 mm")),
    Sketcher.Constraint("DistanceX", -1, 1, 5, 1, Q("23.556929 mm")),
    Sketcher.Constraint("DistanceY", 7, 1, -1, 1, Q("23.556929 mm")),
    Sketcher.Constraint("DistanceX", -1, 1, 9, 1, Q("10.935179 mm")),
    Sketcher.Constraint("DistanceX", -1, 1, 10, 1, Q("5.92808 mm")),
    Sketcher.Constraint("DistanceX", 24, 2, -1, 1, Q("28.49982 mm")),
    Sketcher.Constraint("DistanceX", 25, 2, -1, 1, Q("37.37664 mm")),
    Sketcher.Constraint("DistanceX", 26, 2, -1, 1, Q("24.160981 mm")),
    Sketcher.Constraint("DistanceX", -1, 1, 6, 1, Q("20.205576 mm")),
    Sketcher.Constraint("DistanceX", -1, 1, 11, 1, Q("5.220444 mm")),
])
pad1 = body.newObject("PartDesign::Pad", "Pad")
pad1.Profile = sketch1
pad1.Length = Q("0.25 in")

# Sketch on XZ plane
sketch2 = body.newObject("Sketcher::SketchObject", "Sketch001")
sketch2.AttachmentSupport = (doc.getObject("XZ_Plane"), [""])
sketch2.MapMode = "FlatFace"
sketch2.addGeometry([
    Part.ArcOfCircle(Part.Circle(Vector(0, 0, 0), Vector(0, 0, 1), 12.7), math.radians(90), math.radians(174)),  # 0
    Part.ArcOfCircle(Part.Circle(Vector(0, 0, 0), Vector(0, 0, 1), 12.7), math.radians(6), math.radians(90)),  # 1
    Part.ArcOfCircle(Part.Circle(Vector(38.5, 1.9, 0), Vector(0, 0, 1), 25.9), math.radians(135), math.radians(181)),  # 2
    Part.ArcOfCircle(Part.Circle(Vector(0, 0, 0), Vector(0, 0, 1), 28.6), math.radians(45), math.radians(55.53)),  # 3
    Part.ArcOfCircle(Part.Circle(Vector(0, 0, 0), Vector(0, 0, 1), 28.6), math.radians(55.53), math.radians(56.97)),  # 4
    Part.ArcOfCircle(Part.Circle(Vector(0, 0, 0), Vector(0, 0, 1), 28.6), math.radians(56.97), math.radians(67.5)),  # 5
    Part.ArcOfCircle(Part.Circle(Vector(0, 0, 0), Vector(0, 0, 1), 28.6), math.radians(67.5), math.radians(78.03)),  # 6
    Part.ArcOfCircle(Part.Circle(Vector(0, 0, 0), Vector(0, 0, 1), 28.6), math.radians(78.03), math.radians(79.47)),  # 7
    Part.ArcOfCircle(Part.Circle(Vector(0, 0, 0), Vector(0, 0, 1), 28.6), math.radians(79.47), math.radians(90)),  # 8
    Part.ArcOfCircle(Part.Circle(Vector(0, 0, 0), Vector(0, 0, 1), 28.6), math.radians(90), math.radians(100.53)),  # 9
    Part.ArcOfCircle(Part.Circle(Vector(0, 0, 0), Vector(0, 0, 1), 28.6), math.radians(100.53), math.radians(101.97)),  # 10
    Part.ArcOfCircle(Part.Circle(Vector(0, 0, 0), Vector(0, 0, 1), 28.6), math.radians(101.97), math.radians(112.5)),  # 11
    Part.ArcOfCircle(Part.Circle(Vector(0, 0, 0), Vector(0, 0, 1), 28.6), math.radians(112.5), math.radians(123.03)),  # 12
    Part.ArcOfCircle(Part.Circle(Vector(0, 0, 0), Vector(0, 0, 1), 28.6), math.radians(123.03), math.radians(124.47)),  # 13
    Part.ArcOfCircle(Part.Circle(Vector(0, 0, 0), Vector(0, 0, 1), 28.6), math.radians(124.47), math.radians(135)),  # 14
    Part.ArcOfCircle(Part.Circle(Vector(-38.5, 1.9, 0), Vector(0, 0, 1), 25.9), math.radians(-1), math.radians(45)),  # 15
    Part.ArcOfCircle(Part.Circle(Vector(-38.5, -18.3, 0), Vector(0, 0, 1), 31.6), math.radians(35), math.radians(67)),  # 16
    Part.ArcOfCircle(Part.Circle(Vector(0, 0, 0), Vector(0, 0, 1), 28.6), math.radians(157.5), math.radians(168.03)),  # 17
    Part.ArcOfCircle(Part.Circle(Vector(0, 0, 0), Vector(0, 0, 1), 28.6), math.radians(168.03), math.radians(169.47)),  # 18
    Part.ArcOfCircle(Part.Circle(Vector(0, 0, 0), Vector(0, 0, 1), 28.6), math.radians(169.47), math.radians(180)),  # 19
    Part.ArcOfCircle(Part.Circle(Vector(0, 0, 0), Vector(0, 0, 1), 28.6), math.radians(180), math.radians(190.53)),  # 20
    Part.ArcOfCircle(Part.Circle(Vector(0, 0, 0), Vector(0, 0, 1), 28.6), math.radians(-169.47), math.radians(-168.03)),  # 21
    Part.ArcOfCircle(Part.Circle(Vector(0, 0, 0), Vector(0, 0, 1), 28.6), math.radians(-168.03), math.radians(-157.5)),  # 22
    Part.ArcOfCircle(Part.Circle(Vector(-38.5, 18.3, 0), Vector(0, 0, 1), 31.6), math.radians(-67), math.radians(-35)),  # 23
    Part.ArcOfCircle(Part.Circle(Vector(0, 0, 0), Vector(0, 0, 1), 12.7), math.radians(-174), math.radians(-90)),  # 24
    Part.ArcOfCircle(Part.Circle(Vector(-38.5, -1.9, 0), Vector(0, 0, 1), 25.9), math.radians(-45), math.radians(1)),  # 25
    Part.ArcOfCircle(Part.Circle(Vector(0, 0, 0), Vector(0, 0, 1), 28.6), math.radians(-135), math.radians(-124.47)),  # 26
    Part.ArcOfCircle(Part.Circle(Vector(0, 0, 0), Vector(0, 0, 1), 28.6), math.radians(-124.47), math.radians(-123.03)),  # 27
    Part.ArcOfCircle(Part.Circle(Vector(0, 0, 0), Vector(0, 0, 1), 28.6), math.radians(-123.03), math.radians(-112.5)),  # 28
    Part.ArcOfCircle(Part.Circle(Vector(0, 0, 0), Vector(0, 0, 1), 28.6), math.radians(-112.5), math.radians(-101.97)),  # 29
    Part.ArcOfCircle(Part.Circle(Vector(0, 0, 0), Vector(0, 0, 1), 28.6), math.radians(-101.97), math.radians(-100.53)),  # 30
    Part.ArcOfCircle(Part.Circle(Vector(0, 0, 0), Vector(0, 0, 1), 28.6), math.radians(-100.53), math.radians(-90)),  # 31
    Part.ArcOfCircle(Part.Circle(Vector(0, 0, 0), Vector(0, 0, 1), 28.6), math.radians(-90), math.radians(-79.47)),  # 32
    Part.ArcOfCircle(Part.Circle(Vector(0, 0, 0), Vector(0, 0, 1), 28.6), math.radians(-79.47), math.radians(-78.03)),  # 33
    Part.ArcOfCircle(Part.Circle(Vector(0, 0, 0), Vector(0, 0, 1), 28.6), math.radians(-78.03), math.radians(-67.5)),  # 34
    Part.ArcOfCircle(Part.Circle(Vector(0, 0, 0), Vector(0, 0, 1), 28.6), math.radians(-67.5), math.radians(-56.97)),  # 35
    Part.ArcOfCircle(Part.Circle(Vector(0, 0, 0), Vector(0, 0, 1), 28.6), math.radians(-56.97), math.radians(-55.53)),  # 36
    Part.ArcOfCircle(Part.Circle(Vector(0, 0, 0), Vector(0, 0, 1), 28.6), math.radians(-55.53), math.radians(-45)),  # 37
    Part.ArcOfCircle(Part.Circle(Vector(38.5, -1.9, 0), Vector(0, 0, 1), 25.9), math.radians(179), math.radians(225)),  # 38
    Part.ArcOfCircle(Part.Circle(Vector(0, 0, 0), Vector(0, 0, 1), 12.7), math.radians(-90), math.radians(-6)),  # 39
    Part.ArcOfCircle(Part.Circle(Vector(38.5, -18.3, 0), Vector(0, 0, 1), 31.6), math.radians(113), math.radians(145)),  # 40
    Part.ArcOfCircle(Part.Circle(Vector(38.5, 18.3, 0), Vector(0, 0, 1), 31.6), math.radians(-145), math.radians(-113)),  # 41
    Part.ArcOfCircle(Part.Circle(Vector(0, 0, 0), Vector(0, 0, 1), 28.6), math.radians(-22.5), math.radians(-11.97)),  # 42
    Part.ArcOfCircle(Part.Circle(Vector(0, 0, 0), Vector(0, 0, 1), 28.6), math.radians(-11.97), math.radians(-10.53)),  # 43
    Part.ArcOfCircle(Part.Circle(Vector(0, 0, 0), Vector(0, 0, 1), 28.6), math.radians(-10.53), math.radians(0)),  # 44
    Part.ArcOfCircle(Part.Circle(Vector(0, 0, 0), Vector(0, 0, 1), 28.6), math.radians(0), math.radians(10.53)),  # 45
    Part.ArcOfCircle(Part.Circle(Vector(0, 0, 0), Vector(0, 0, 1), 28.6), math.radians(10.53), math.radians(11.97)),  # 46
    Part.ArcOfCircle(Part.Circle(Vector(0, 0, 0), Vector(0, 0, 1), 28.6), math.radians(11.97), math.radians(22.5)),  # 47
], False)
sketch2.addConstraint([
    Sketcher.Constraint("Tangent", 0, 1, 1, 2),
    Sketcher.Constraint("Coincident", 1, 1, 2, 2),
    Sketcher.Constraint("Coincident", 2, 1, 3, 1),
    Sketcher.Constraint("Tangent", 3, 2, 4, 1),
    Sketcher.Constraint("Tangent", 4, 2, 5, 1),
    Sketcher.Constraint("Tangent", 5, 2, 6, 1),
    Sketcher.Constraint("Tangent", 6, 2, 7, 1),
    Sketcher.Constraint("Tangent", 7, 2, 8, 1),
    Sketcher.Constraint("Tangent", 8, 2, 9, 1),
    Sketcher.Constraint("Tangent", 9, 2, 10, 1),
    Sketcher.Constraint("Tangent", 10, 2, 11, 1),
    Sketcher.Constraint("Tangent", 11, 2, 12, 1),
    Sketcher.Constraint("Tangent", 12, 2, 13, 1),
    Sketcher.Constraint("Tangent", 13, 2, 14, 1),
    Sketcher.Constraint("Coincident", 14, 2, 15, 2),
    Sketcher.Constraint("Coincident", 15, 1, 0, 2),
    Sketcher.Constraint("Coincident", 16, 2, 17, 1),
    Sketcher.Constraint("Tangent", 17, 2, 18, 1),
    Sketcher.Constraint("Tangent", 18, 2, 19, 1),
    Sketcher.Constraint("Tangent", 19, 2, 20, 1),
    Sketcher.Constraint("Tangent", 20, 2, 21, 1),
    Sketcher.Constraint("Tangent", 21, 2, 22, 1),
    Sketcher.Constraint("Coincident", 22, 2, 23, 1),
    Sketcher.Constraint("Coincident", 23, 2, 16, 1),
    Sketcher.Constraint("Coincident", 24, 1, 25, 2),
    Sketcher.Constraint("Coincident", 25, 1, 26, 1),
    Sketcher.Constraint("Tangent", 26, 2, 27, 1),
    Sketcher.Constraint("Tangent", 27, 2, 28, 1),
    Sketcher.Constraint("Tangent", 28, 2, 29, 1),
    Sketcher.Constraint("Tangent", 29, 2, 30, 1),
    Sketcher.Constraint("Tangent", 30, 2, 31, 1),
    Sketcher.Constraint("Tangent", 31, 2, 32, 1),
    Sketcher.Constraint("Tangent", 32, 2, 33, 1),
    Sketcher.Constraint("Tangent", 33, 2, 34, 1),
    Sketcher.Constraint("Tangent", 34, 2, 35, 1),
    Sketcher.Constraint("Tangent", 35, 2, 36, 1),
    Sketcher.Constraint("Tangent", 36, 2, 37, 1),
    Sketcher.Constraint("Coincident", 37, 2, 38, 2),
    Sketcher.Constraint("Coincident", 38, 1, 39, 2),
    Sketcher.Constraint("Tangent", 39, 1, 24, 2),
    Sketcher.Constraint("Coincident", 40, 2, 41, 1),
    Sketcher.Constraint("Coincident", 41, 2, 42, 1),
    Sketcher.Constraint("Tangent", 42, 2, 43, 1),
    Sketcher.Constraint("Tangent", 43, 2, 44, 1),
    Sketcher.Constraint("Tangent", 44, 2, 45, 1),
    Sketcher.Constraint("Tangent", 45, 2, 46, 1),
    Sketcher.Constraint("Tangent", 46, 2, 47, 1),
    Sketcher.Constraint("Coincident", 47, 2, 40, 1),
    Sketcher.Constraint("Coincident", 0, 3, -1, 1),
    Sketcher.Constraint("Coincident", 3, 3, -1, 1),
    Sketcher.Constraint("Coincident", 5, 3, -1, 1),
    Sketcher.Constraint("Coincident", 7, 3, -1, 1),
    Sketcher.Constraint("Coincident", 9, 3, -1, 1),
    Sketcher.Constraint("Coincident", 11, 3, -1, 1),
    Sketcher.Constraint("Coincident", 13, 3, -1, 1),
    Sketcher.Constraint("Coincident", 17, 3, -1, 1),
    Sketcher.Constraint("Coincident", 19, 3, -1, 1),
    Sketcher.Constraint("Coincident", 21, 3, -1, 1),
    Sketcher.Constraint("Coincident", 24, 3, -1, 1),
    Sketcher.Constraint("Coincident", 26, 3, -1, 1),
    Sketcher.Constraint("Coincident", 28, 3, -1, 1),
    Sketcher.Constraint("Coincident", 30, 3, -1, 1),
    Sketcher.Constraint("Coincident", 32, 3, -1, 1),
    Sketcher.Constraint("Coincident", 34, 3, -1, 1),
    Sketcher.Constraint("Coincident", 36, 3, -1, 1),
    Sketcher.Constraint("Coincident", 42, 3, -1, 1),
    Sketcher.Constraint("Coincident", 44, 3, -1, 1),
    Sketcher.Constraint("Coincident", 46, 3, -1, 1),
    Sketcher.Constraint("Equal", 0, 1),
    Sketcher.Constraint("Equal", 13, 14),
    Sketcher.Constraint("Equal", 2, 15),
    Sketcher.Constraint("Equal", 14, 17),
    Sketcher.Constraint("Equal", 21, 22),
    Sketcher.Constraint("Equal", 16, 23),
    Sketcher.Constraint("Equal", 1, 24),
    Sketcher.Constraint("Equal", 15, 25),
    Sketcher.Constraint("Equal", 22, 26),
    Sketcher.Constraint("Equal", 36, 37),
    Sketcher.Constraint("Equal", 25, 38),
    Sketcher.Constraint("Equal", 24, 39),
    Sketcher.Constraint("Equal", 23, 40),
    Sketcher.Constraint("Equal", 40, 41),
    Sketcher.Constraint("Equal", 37, 42),
    Sketcher.Constraint("Equal", 46, 47),
    Sketcher.Constraint("Symmetric", 2, 3, 25, 3, -1, 1),
    Sketcher.Constraint("Symmetric", 15, 3, 38, 3, -1, 1),
    Sketcher.Constraint("Symmetric", 23, 3, 40, 3, -1, 1),
    Sketcher.Constraint("Symmetric", 16, 3, 41, 3, -1, 1),
    Sketcher.Constraint("Symmetric", 2, 3, 15, 3, -2),
    Sketcher.Constraint("Symmetric", 16, 3, 40, 3, -2),
    Sketcher.Constraint("PointOnObject", 0, 1, -2),
    Sketcher.Constraint("PointOnObject", 8, 2, -2),
    Sketcher.Constraint("PointOnObject", 19, 2, -1),
    Sketcher.Constraint("PointOnObject", 31, 2, -2),
    Sketcher.Constraint("PointOnObject", 39, 1, -2),
    Sketcher.Constraint("PointOnObject", 44, 2, -1),
    Sketcher.Constraint("Horizontal", 7, 2, 9, 2),
    Sketcher.Constraint("Horizontal", 6, 2, 10, 2),
    Sketcher.Constraint("Horizontal", 5, 2, 11, 2),
    Sketcher.Constraint("Horizontal", 4, 2, 12, 2),
    Sketcher.Constraint("Horizontal", 3, 2, 13, 2),
    Sketcher.Constraint("Horizontal", 30, 2, 32, 2),
    Sketcher.Constraint("Horizontal", 29, 2, 33, 2),
    Sketcher.Constraint("Horizontal", 28, 2, 34, 2),
    Sketcher.Constraint("Horizontal", 27, 2, 35, 2),
    Sketcher.Constraint("Horizontal", 26, 2, 36, 2),
    Sketcher.Constraint("Horizontal", 21, 2, 42, 2),
    Sketcher.Constraint("Horizontal", 20, 2, 43, 2),
    Sketcher.Constraint("Horizontal", 18, 2, 45, 2),
    Sketcher.Constraint("Horizontal", 17, 2, 46, 2),
    Sketcher.Constraint("Vertical", 15, 3, 16, 3),
    Sketcher.Constraint("Vertical", 18, 2, 20, 2),
    Sketcher.Constraint("Vertical", 17, 2, 21, 2),
    Sketcher.Constraint("Vertical", 13, 2, 26, 2),
    Sketcher.Constraint("Vertical", 12, 2, 27, 2),
    Sketcher.Constraint("Vertical", 11, 2, 28, 2),
    Sketcher.Constraint("Vertical", 10, 2, 29, 2),
    Sketcher.Constraint("Vertical", 9, 2, 30, 2),
    Sketcher.Constraint("Radius", 0, Q("0.5 in")),
    Sketcher.Constraint("Radius", 3, Q("1.125 in")),
    Sketcher.Constraint("DistanceX", 23, 2, -1, 1, Q("0.5 in")),
    Sketcher.Constraint("DistanceX", -1, 1, 2, 3, Q("1.515625 in")),
    Sketcher.Constraint("Radius", 16, Q("31.61103 mm")),
    Sketcher.Constraint("Radius", 2, Q("25.867803 mm")),
    Sketcher.Constraint("DistanceX", -1, 1, 4, 2, Q("15.574202 mm")),
    Sketcher.Constraint("DistanceX", -1, 1, 1, 1, Q("12.63735 mm")),
    Sketcher.Constraint("DistanceY", -1, 1, 3, 2, Q("23.556929 mm")),
    Sketcher.Constraint("DistanceX", -1, 1, 5, 2, Q("10.935179 mm")),
    Sketcher.Constraint("DistanceX", -1, 1, 6, 2, Q("5.92808 mm")),
    Sketcher.Constraint("DistanceY", -1, 1, 17, 2, Q("5.92808 mm")),
    Sketcher.Constraint("DistanceX", -1, 1, 7, 2, Q("5.220444 mm")),
    Sketcher.Constraint("DistanceX", 18, 2, -1, 1, Q("28.094085 mm")),
])
pad2 = body.newObject("PartDesign::Pad", "Pad001")
pad2.Profile = sketch2
pad2.Length = Q("0.5 in")

doc.recompute()
